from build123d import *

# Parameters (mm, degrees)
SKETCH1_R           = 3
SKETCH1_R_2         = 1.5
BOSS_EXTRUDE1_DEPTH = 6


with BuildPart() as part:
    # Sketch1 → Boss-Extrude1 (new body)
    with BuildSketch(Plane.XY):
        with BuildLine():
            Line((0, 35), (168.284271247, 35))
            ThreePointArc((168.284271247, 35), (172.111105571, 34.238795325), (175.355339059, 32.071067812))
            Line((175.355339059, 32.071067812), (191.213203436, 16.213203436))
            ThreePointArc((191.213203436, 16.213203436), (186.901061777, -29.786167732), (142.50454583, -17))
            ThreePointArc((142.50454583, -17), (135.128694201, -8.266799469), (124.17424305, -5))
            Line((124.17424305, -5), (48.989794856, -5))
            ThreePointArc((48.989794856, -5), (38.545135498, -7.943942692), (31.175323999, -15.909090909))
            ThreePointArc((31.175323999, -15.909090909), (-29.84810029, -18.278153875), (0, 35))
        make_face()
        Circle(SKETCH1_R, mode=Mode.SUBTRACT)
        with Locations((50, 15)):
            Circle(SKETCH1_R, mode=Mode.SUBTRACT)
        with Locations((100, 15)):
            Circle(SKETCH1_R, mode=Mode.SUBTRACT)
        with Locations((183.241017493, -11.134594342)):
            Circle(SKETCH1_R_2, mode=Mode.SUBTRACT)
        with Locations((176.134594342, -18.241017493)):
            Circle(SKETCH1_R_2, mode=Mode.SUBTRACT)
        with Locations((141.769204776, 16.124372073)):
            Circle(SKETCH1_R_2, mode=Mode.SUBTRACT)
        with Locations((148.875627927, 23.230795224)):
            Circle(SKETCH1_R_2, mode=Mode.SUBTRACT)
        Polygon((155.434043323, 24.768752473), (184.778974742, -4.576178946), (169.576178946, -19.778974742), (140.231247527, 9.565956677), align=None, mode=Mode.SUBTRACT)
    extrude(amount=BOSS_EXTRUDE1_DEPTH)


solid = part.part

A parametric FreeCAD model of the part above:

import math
import FreeCAD as App
import Part
import Sketcher
from FreeCAD import Vector
Q = App.Units.Quantity

doc = App.newDocument("Part")
body = doc.addObject("PartDesign::Body", "Body")

sketch1 = body.newObject("Sketcher::SketchObject", "Sketch")
sketch1.AttachmentSupport = (doc.getObject("XY_Plane"), [""])
sketch1.MapMode = "FlatFace"
sketch1.addGeometry(Part.LineSegment(Vector(168.284271, 35, 0), Vector(0, 35, 0)), False)
sketch1.addGeometry(Part.ArcOfCircle(Part.Circle(Vector(0, 0, 0), Vector(0, 0, 1), 35), math.radians(90), math.radians(332.964308)), False)
sketch1.addGeometry(Part.ArcOfCircle(Part.Circle(Vector(48.989795, -25, 0), Vector(0, 0, 1), 20), math.radians(90), math.radians(152.964308)), False)
sketch1.addGeometry(Part.LineSegment(Vector(48.989795, -5, 0), Vector(124.174243, -5, 0)), False)
sketch1.addGeometry(Part.ArcOfCircle(Part.Circle(Vector(124.174243, -25, 0), Vector(0, 0, 1), 20), math.radians(23.578178), math.radians(90)), False)
sketch1.addGeometry(Part.ArcOfCircle(Part.Circle(Vector(170, -5, 0), Vector(0, 0, 1), 30), math.radians(-156.421822), math.radians(45)), False)
sketch1.addGeometry(Part.LineSegment(Vector(191.213203, 16.213203, 0), Vector(175.355339, 32.071068, 0)), False)
sketch1.addGeometry(Part.ArcOfCircle(Part.Circle(Vector(168.284271, 25, 0), Vector(0, 0, 1), 10), math.radians(45), math.radians(90)), False)
sketch1.addGeometry(Part.Circle(Vector(176.134594, -18.241017, 0), Vector(0, 0, 1), 1.5), False)
sketch1.addGeometry(Part.Circle(Vector(183.241017, -11.134594, 0), Vector(0, 0, 1), 1.5), False)
sketch1.addGeometry(Part.Circle(Vector(0, 0, 0), Vector(0, 0, 1), 3), False)
sketch1.addGeometry(Part.LineSegment(Vector(155.434043, 24.768752, 0), Vector(184.778975, -4.576179, 0)), False)
sketch1.addGeometry(Part.LineSegment(Vector(184.778975, -4.576179, 0), Vector(169.576179, -19.778975, 0)), False)
sketch1.addGeometry(Part.LineSegment(Vector(169.576179, -19.778975, 0), Vector(140.231248, 9.565957, 0)), False)
sketch1.addGeometry(Part.LineSegment(Vector(140.231248, 9.565957, 0), Vector(155.434043, 24.768752, 0)), False)
sketch1.addGeometry(Part.Circle(Vector(141.769205, 16.124372, 0), Vector(0, 0, 1), 1.5), False)
sketch1.addGeometry(Part.Circle(Vector(148.875628, 23.230795, 0), Vector(0, 0, 1), 1.5), False)
sketch1.addGeometry(Part.Circle(Vector(100, 15, 0), Vector(0, 0, 1), 3), False)
sketch1.addGeometry(Part.Circle(Vector(50, 15, 0), Vector(0, 0, 1), 3), False)
sketch1.addConstraint(Sketcher.Constraint("Tangent", 0, 2, 1, 1))
sketch1.addConstraint(Sketcher.Constraint("Tangent", 1, 2, 2, 2))
sketch1.addConstraint(Sketcher.Constraint("Tangent", 2, 1, 3, 1))
sketch1.addConstraint(Sketcher.Constraint("Tangent", 3, 2, 4, 2))
sketch1.addConstraint(Sketcher.Constraint("Tangent", 4, 1, 5, 1))
sketch1.addConstraint(Sketcher.Constraint("Tangent", 5, 2, 6, 1))
sketch1.addConstraint(Sketcher.Constraint("Tangent", 6, 2, 7, 1))
sketch1.addConstraint(Sketcher.Constraint("Tangent", 7, 2, 0, 1))
sketch1.addConstraint(Sketcher.Constraint("Coincident", 11, 2, 12, 1))
sketch1.addConstraint(Sketcher.Constraint("Coincident", 12, 2, 13, 1))
sketch1.addConstraint(Sketcher.Constraint("Coincident", 13, 2, 14, 1))
sketch1.addConstraint(Sketcher.Constraint("Coincident", 14, 2, 11, 1))
sketch1.addConstraint(Sketcher.Constraint("Horizontal", 0))
sketch1.addConstraint(Sketcher.Constraint("Horizontal", 3))
sketch1.addConstraint(Sketcher.Constraint("Coincident", 1, 3, -1, 1))
sketch1.addConstraint(Sketcher.Constraint("Coincident", 10, 3, -1, 1))
sketch1.addConstraint(Sketcher.Constraint("Equal", 2, 4))
sketch1.addConstraint(Sketcher.Constraint("Equal", 8, 9))
sketch1.addConstraint(Sketcher.Constraint("Equal", 9, 15))
sketch1.addConstraint(Sketcher.Constraint("Equal", 15, 16))
sketch1.addConstraint(Sketcher.Constraint("Equal", 10, 17))
sketch1.addConstraint(Sketcher.Constraint("Equal", 17, 18))
sketch1.addConstraint(Sketcher.Constraint("Parallel", 6, 11))
sketch1.addConstraint(Sketcher.Constraint("Perpendicular", 11, 12))
sketch1.addConstraint(Sketcher.Constraint("Perpendicular", 12, 13))
sketch1.addConstraint(Sketcher.Constraint("Perpendicular", 13, 14))
sketch1.addConstraint(Sketcher.Constraint("Horizontal", 17, 3, 18, 3))
sketch1.addConstraint(Sketcher.Constraint("Horizontal", 5, 3, 2, 1))
sketch1.addConstraint(Sketcher.Constraint("Diameter", 8, Q("3 mm")))
sketch1.addConstraint(Sketcher.Constraint("Diameter", 10, Q("6 mm")))
sketch1.addConstraint(Sketcher.Constraint("Radius", 1, Q("35 mm")))
sketch1.addConstraint(Sketcher.Constraint("Radius", 2, Q("20 mm")))
sketch1.addConstraint(Sketcher.Constraint("Radius", 5, Q("30 mm")))
sketch1.addConstraint(Sketcher.Constraint("Radius", 7, Q("10 mm")))
sketch1.addConstraint(Sketcher.Constraint("Angle", 6, Q("135 deg")))
sketch1.addConstraint(Sketcher.Constraint("DistanceY", 2, 3, -1, 1, Q("25 mm")))
sketch1.addConstraint(Sketcher.Constraint("DistanceX", -1, 1, 5, 3, Q("170 mm")))
sketch1.addConstraint(Sketcher.Constraint("DistanceX", -1, 1, 17, 3, Q("100 mm")))
sketch1.addConstraint(Sketcher.Constraint("DistanceY", -1, 1, 17, 3, Q("15 mm")))
sketch1.addConstraint(Sketcher.Constraint("DistanceX", -1, 1, 18, 3, Q("50 mm")))
sketch1.addConstraint(Sketcher.Constraint("Distance", 11, Q("41.5 mm")))
sketch1.addConstraint(Sketcher.Constraint("Distance", 12, Q("21.5 mm")))
sketch1.addConstraint(Sketcher.Constraint("DistanceX", 2, 3, 8, 3, Q("127.144799 mm")))
sketch1.addConstraint(Sketcher.Constraint("DistanceX", 13, 2, 4, 1, Q("2.273298 mm")))
sketch1.addConstraint(Sketcher.Constraint("DistanceY", 11, 2, -1, 1, Q("4.576179 mm")))
sketch1.addConstraint(Sketcher.Constraint("DistanceX", 4, 3, 15, 3, Q("17.594962 mm")))
sketch1.addConstraint(Sketcher.Constraint("DistanceY", 8, 3, 15, 3, Q("34.36539 mm")))
sketch1.addConstraint(Sketcher.Constraint("DistanceX", 16, 3, 9, 3, Q("34.36539 mm")))
sketch1.addConstraint(Sketcher.Constraint("DistanceY", 9, 3, 16, 3, Q("34.36539 mm")))
sketch1.addConstraint(Sketcher.Constraint("DistanceY", 8, 3, 5, 2, Q("34.454221 mm")))
sketch1.addConstraint(Sketcher.Constraint("DistanceY", 5, 2, 16, 3, Q("7.017592 mm")))
sketch1.addConstraint(Sketcher.Constraint("DistanceX", 16, 3, 6, 2, Q("26.479711 mm")))
pad1 = body.newObject("PartDesign::Pad", "Pad")
pad1.Profile = sketch1
pad1.Length = 6

doc.recompute()
